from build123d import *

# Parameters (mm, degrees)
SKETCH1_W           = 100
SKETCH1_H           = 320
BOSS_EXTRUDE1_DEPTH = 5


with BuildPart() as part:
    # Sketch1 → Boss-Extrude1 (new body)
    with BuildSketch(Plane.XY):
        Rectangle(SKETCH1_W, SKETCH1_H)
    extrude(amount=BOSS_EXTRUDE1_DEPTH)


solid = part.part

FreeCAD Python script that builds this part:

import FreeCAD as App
import Part
import Sketcher
from FreeCAD import Vector


def add_polygon(sketch, points):
    """Adds a closed chain of lines whose ends are joined by coincident constraints."""
    first, n = sketch.GeometryCount, len(points)
    for a, b in zip(points, points[1:] + points[:1]):
        sketch.addGeometry(Part.LineSegment(App.Vector(*a, 0), App.Vector(*b, 0)), False)
    for i in range(n):
        sketch.addConstraint(Sketcher.Constraint("Coincident", first + i, 2, first + (i + 1) % n, 1))

doc = App.newDocument("Part")
params = doc.addObject("Spreadsheet::Sheet", "Params")
for row, (alias, value) in enumerate([
    ("sketch1_width", "100 mm"),
    ("sketch1_height", "320 mm"),
    ("pad1_length", "5 mm"),
], start=1):
    params.set(f"A{row}", alias)
    params.set(f"B{row}", "=" + value)
    params.setAlias(f"B{row}", alias)

body = doc.addObject("PartDesign::Body", "Body")

sketch1 = doc.addObject("Sketcher::SketchObject", "Sketch")
body.addObject(sketch1)
sketch1.AttachmentSupport = (doc.XY_Plane, [""])
sketch1.MapMode = "FlatFace"
add_polygon(sketch1, [(-50, 160), (-50, -160), (50, -160), (50, 160)])
sketch1.addConstraint([
    Sketcher.Constraint("Vertical", 0),
    Sketcher.Constraint("Horizontal", 1),
    Sketcher.Constraint("Vertical", 2),
    Sketcher.Constraint("Horizontal", 3),
    Sketcher.Constraint("Symmetric", 0, 2, 2, 2, -1, 1),
    Sketcher.Constraint("DistanceX", 1, 1, 1, 2, 100.0),
    Sketcher.Constraint("DistanceY", 0, 2, 0, 1, 320.0),
])
sketch1.setExpression("Constraints[9]", "Params.sketch1_width")
sketch1.setExpression("Constraints[10]", "Params.sketch1_height")
pad1 = doc.addObject("PartDesign::Pad", "Pad")
body.addObject(pad1)
pad1.Profile = sketch1
pad1.setExpression("Length", "Params.pad1_length")

doc.recompute()
